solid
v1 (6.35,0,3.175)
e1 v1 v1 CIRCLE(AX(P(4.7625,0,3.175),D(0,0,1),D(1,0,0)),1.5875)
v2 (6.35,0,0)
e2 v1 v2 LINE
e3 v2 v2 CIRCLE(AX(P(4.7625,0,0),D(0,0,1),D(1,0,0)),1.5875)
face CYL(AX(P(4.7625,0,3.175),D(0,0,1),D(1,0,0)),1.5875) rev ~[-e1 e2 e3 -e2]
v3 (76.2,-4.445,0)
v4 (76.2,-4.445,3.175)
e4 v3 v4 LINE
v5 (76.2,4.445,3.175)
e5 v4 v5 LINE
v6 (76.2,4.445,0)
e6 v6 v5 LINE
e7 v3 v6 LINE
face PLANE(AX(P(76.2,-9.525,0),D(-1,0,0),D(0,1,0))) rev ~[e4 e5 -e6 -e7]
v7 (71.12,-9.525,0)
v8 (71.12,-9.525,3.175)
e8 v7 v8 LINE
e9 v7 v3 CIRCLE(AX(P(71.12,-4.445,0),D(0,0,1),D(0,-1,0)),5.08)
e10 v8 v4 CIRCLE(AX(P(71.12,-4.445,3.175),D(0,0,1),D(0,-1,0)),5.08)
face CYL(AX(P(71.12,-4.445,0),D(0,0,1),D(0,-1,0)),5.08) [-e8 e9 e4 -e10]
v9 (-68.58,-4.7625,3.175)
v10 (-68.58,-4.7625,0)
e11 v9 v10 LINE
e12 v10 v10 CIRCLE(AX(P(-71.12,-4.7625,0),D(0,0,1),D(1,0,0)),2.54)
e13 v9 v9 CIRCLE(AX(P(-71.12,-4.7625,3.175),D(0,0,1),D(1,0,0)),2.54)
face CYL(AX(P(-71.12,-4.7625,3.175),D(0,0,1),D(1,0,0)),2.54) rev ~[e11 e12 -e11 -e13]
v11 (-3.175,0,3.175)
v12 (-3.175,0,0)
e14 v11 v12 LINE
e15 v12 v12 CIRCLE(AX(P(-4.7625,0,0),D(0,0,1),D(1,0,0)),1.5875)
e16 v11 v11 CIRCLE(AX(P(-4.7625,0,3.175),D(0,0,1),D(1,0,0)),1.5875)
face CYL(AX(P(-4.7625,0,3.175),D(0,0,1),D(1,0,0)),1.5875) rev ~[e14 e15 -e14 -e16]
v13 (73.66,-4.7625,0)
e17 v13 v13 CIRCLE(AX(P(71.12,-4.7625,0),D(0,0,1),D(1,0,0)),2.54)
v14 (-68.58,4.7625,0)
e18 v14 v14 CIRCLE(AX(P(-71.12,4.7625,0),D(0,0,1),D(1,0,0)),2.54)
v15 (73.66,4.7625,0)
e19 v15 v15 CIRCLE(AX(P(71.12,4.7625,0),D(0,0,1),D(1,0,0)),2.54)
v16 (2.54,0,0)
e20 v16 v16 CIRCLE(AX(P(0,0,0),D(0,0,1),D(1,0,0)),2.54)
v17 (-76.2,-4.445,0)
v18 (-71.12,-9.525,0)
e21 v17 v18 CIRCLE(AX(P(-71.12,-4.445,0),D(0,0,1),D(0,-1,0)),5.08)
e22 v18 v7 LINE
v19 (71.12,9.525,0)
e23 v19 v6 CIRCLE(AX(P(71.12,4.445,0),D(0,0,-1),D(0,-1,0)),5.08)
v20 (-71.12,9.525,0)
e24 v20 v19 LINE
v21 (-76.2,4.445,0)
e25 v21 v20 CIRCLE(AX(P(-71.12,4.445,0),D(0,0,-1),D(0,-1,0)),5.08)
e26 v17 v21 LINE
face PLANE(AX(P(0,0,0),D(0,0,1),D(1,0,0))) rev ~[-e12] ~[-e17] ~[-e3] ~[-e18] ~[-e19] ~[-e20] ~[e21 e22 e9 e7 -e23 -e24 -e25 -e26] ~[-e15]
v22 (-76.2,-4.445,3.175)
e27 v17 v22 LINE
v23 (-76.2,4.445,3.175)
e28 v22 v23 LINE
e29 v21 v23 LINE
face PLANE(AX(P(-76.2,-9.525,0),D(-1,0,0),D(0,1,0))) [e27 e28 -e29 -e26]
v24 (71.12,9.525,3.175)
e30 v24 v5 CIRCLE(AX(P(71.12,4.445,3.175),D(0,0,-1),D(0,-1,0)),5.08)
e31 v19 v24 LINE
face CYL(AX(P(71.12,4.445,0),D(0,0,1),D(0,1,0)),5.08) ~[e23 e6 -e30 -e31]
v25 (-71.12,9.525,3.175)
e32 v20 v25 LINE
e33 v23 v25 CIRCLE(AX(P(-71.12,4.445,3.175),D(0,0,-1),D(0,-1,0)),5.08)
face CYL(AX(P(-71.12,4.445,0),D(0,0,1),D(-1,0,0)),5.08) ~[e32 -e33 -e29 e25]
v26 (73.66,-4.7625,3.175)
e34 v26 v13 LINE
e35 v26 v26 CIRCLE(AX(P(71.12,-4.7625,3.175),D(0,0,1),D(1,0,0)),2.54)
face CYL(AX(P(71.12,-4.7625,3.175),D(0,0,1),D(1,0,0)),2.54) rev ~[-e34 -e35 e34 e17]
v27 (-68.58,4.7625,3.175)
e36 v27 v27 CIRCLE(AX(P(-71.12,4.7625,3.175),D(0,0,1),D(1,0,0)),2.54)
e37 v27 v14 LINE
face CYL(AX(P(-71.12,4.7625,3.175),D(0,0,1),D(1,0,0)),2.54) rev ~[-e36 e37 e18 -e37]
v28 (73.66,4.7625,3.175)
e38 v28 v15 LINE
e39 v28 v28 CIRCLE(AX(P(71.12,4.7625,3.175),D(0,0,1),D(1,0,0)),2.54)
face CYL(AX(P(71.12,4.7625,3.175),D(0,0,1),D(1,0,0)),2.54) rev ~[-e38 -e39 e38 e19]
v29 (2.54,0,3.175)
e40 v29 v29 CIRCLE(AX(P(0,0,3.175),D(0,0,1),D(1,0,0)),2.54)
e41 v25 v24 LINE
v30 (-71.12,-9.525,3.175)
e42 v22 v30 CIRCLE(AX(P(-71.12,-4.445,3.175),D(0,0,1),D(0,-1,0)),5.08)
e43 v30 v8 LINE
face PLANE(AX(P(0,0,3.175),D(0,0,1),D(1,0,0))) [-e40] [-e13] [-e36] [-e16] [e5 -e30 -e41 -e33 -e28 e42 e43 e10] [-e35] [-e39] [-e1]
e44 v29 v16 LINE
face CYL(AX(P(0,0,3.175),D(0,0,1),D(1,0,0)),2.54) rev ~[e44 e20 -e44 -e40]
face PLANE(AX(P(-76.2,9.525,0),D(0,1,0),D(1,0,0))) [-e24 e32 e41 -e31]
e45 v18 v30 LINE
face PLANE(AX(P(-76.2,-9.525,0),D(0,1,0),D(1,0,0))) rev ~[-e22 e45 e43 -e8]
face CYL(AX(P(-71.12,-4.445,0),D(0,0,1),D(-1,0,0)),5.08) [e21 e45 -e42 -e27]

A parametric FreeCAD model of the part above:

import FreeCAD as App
import Part
import Sketcher

V = App.Vector
Q = App.Units.Quantity


def edges_at(feature, points):
    """Names of the edges that pass closest to the given points."""
    edges = feature.Shape.Edges
    near = lambda p: min(range(len(edges)), key=lambda i: edges[i].distToShape(Part.Vertex(*p))[0])
    return sorted({f"Edge{near(p) + 1}" for p in points})


def add_polygon(sketch, points):
    """Adds a closed chain of lines whose ends are joined by coincident constraints."""
    first, n = sketch.GeometryCount, len(points)
    for a, b in zip(points, points[1:] + points[:1]):
        sketch.addGeometry(Part.LineSegment(App.Vector(*a, 0), App.Vector(*b, 0)), False)
    for i in range(n):
        sketch.addConstraint(Sketcher.Constraint("Coincident", first + i, 2, first + (i + 1) % n, 1))

doc = App.newDocument("Part")
body = doc.addObject("PartDesign::Body", "Body")

sketch1 = body.newObject("Sketcher::SketchObject", "Sketch")
sketch1.AttachmentSupport = (doc.getObject("XY_Plane"), [""])
sketch1.MapMode = "FlatFace"
add_polygon(sketch1, [(-76, 10), (-76, -10), (76, -10), (76, 10)])
sketch1.addConstraint(Sketcher.Constraint("Vertical", 0))
sketch1.addConstraint(Sketcher.Constraint("Horizontal", 1))
sketch1.addConstraint(Sketcher.Constraint("Vertical", 2))
sketch1.addConstraint(Sketcher.Constraint("Horizontal", 3))
sketch1.addConstraint(Sketcher.Constraint("Symmetric", 0, 2, 2, 2, -1, 1))
sketch1.addConstraint(Sketcher.Constraint("DistanceX", 1, 1, 1, 2, Q("6 in")))
sketch1.addConstraint(Sketcher.Constraint("DistanceY", 0, 2, 0, 1, Q("0.75 in")))
pad1 = body.newObject("PartDesign::Pad", "Pad")
pad1.Profile = sketch1
pad1.Length = Q("0.125 in")

sketch2 = body.newObject("Sketcher::SketchObject", "Sketch001")
sketch2.AttachmentSupport = (doc.getObject("XY_Plane"), [""])
sketch2.MapMode = "FlatFace"
sketch2.AttachmentOffset = App.Placement(V(0, 0, 0.125 * 25.4), App.Rotation())
sketch2.addGeometry(Part.Circle(V(-71.1, 4.8, 0), V(0, 0, 1), 2.5), False)
sketch2.addGeometry(Part.Circle(V(-71.1, -4.8, 0), V(0, 0, 1), 2.5), False)
sketch2.addGeometry(Part.Circle(V(71.1, 4.8, 0), V(0, 0, 1), 2.5), False)
sketch2.addGeometry(Part.Circle(V(71.1, -4.8, 0), V(0, 0, 1), 2.5), False)
sketch2.addConstraint(Sketcher.Constraint("Equal", 0, 1))
sketch2.addConstraint(Sketcher.Constraint("Equal", 1, 2))
sketch2.addConstraint(Sketcher.Constraint("Equal", 2, 3))
sketch2.addConstraint(Sketcher.Constraint("Symmetric", 1, 3, 2, 3, -1, 1))
sketch2.addConstraint(Sketcher.Constraint("Symmetric", 0, 3, 3, 3, -1, 1))
sketch2.addConstraint(Sketcher.Constraint("Symmetric", 0, 3, 2, 3, -2))
sketch2.addConstraint(Sketcher.Constraint("Diameter", 0, Q("0.2 in")))
sketch2.addConstraint(Sketcher.Constraint("DistanceX", 0, 3, -1, 1, Q("2.8 in")))
sketch2.addConstraint(Sketcher.Constraint("DistanceY", -1, 1, 0, 3, Q("0.1875 in")))
pocket1 = body.newObject("PartDesign::Pocket", "Pocket")
pocket1.Profile = sketch2
pocket1.Type = "ThroughAll"
doc.recompute()

fillet = body.newObject("PartDesign::Fillet", "Fillet")
fillet.Base = (pocket1, edges_at(pocket1, [
    (-76.2, 9.525, 1.587),
    (-76.2, -9.525, 1.587),
    (76.2, 9.525, 1.587),
    (76.2, -9.525, 1.587),
]))
fillet.Radius = Q("0.2 in")

sketch3 = body.newObject("Sketcher::SketchObject", "Sketch002")
sketch3.AttachmentSupport = (doc.getObject("XY_Plane"), [""])
sketch3.MapMode = "FlatFace"
sketch3.AttachmentOffset = App.Placement(V(0, 0, 0.125 * 25.4), App.Rotation())
sketch3.addGeometry(Part.Circle(V(0, 0, 0), V(0, 0, 1), 2.5), False)
sketch3.addGeometry(Part.Circle(V(-4.8, 0, 0), V(0, 0, 1), 1.6), False)
sketch3.addGeometry(Part.Circle(V(4.8, 0, 0), V(0, 0, 1), 1.6), False)
sketch3.addConstraint(Sketcher.Constraint("Coincident", 0, 3, -1, 1))
sketch3.addConstraint(Sketcher.Constraint("Equal", 1, 2))
sketch3.addConstraint(Sketcher.Constraint("Symmetric", 1, 3, 2, 3, -1, 1))
sketch3.addConstraint(Sketcher.Constraint("PointOnObject", 1, 3, -1))
sketch3.addConstraint(Sketcher.Constraint("Diameter", 0, Q("0.2 in")))
sketch3.addConstraint(Sketcher.Constraint("Diameter", 1, Q("0.125 in")))
sketch3.addConstraint(Sketcher.Constraint("DistanceX", 1, 3, -1, 1, Q("0.1875 in")))
pocket2 = body.newObject("PartDesign::Pocket", "Pocket001")
pocket2.Profile = sketch3
pocket2.Type = "ThroughAll"

doc.recompute()
